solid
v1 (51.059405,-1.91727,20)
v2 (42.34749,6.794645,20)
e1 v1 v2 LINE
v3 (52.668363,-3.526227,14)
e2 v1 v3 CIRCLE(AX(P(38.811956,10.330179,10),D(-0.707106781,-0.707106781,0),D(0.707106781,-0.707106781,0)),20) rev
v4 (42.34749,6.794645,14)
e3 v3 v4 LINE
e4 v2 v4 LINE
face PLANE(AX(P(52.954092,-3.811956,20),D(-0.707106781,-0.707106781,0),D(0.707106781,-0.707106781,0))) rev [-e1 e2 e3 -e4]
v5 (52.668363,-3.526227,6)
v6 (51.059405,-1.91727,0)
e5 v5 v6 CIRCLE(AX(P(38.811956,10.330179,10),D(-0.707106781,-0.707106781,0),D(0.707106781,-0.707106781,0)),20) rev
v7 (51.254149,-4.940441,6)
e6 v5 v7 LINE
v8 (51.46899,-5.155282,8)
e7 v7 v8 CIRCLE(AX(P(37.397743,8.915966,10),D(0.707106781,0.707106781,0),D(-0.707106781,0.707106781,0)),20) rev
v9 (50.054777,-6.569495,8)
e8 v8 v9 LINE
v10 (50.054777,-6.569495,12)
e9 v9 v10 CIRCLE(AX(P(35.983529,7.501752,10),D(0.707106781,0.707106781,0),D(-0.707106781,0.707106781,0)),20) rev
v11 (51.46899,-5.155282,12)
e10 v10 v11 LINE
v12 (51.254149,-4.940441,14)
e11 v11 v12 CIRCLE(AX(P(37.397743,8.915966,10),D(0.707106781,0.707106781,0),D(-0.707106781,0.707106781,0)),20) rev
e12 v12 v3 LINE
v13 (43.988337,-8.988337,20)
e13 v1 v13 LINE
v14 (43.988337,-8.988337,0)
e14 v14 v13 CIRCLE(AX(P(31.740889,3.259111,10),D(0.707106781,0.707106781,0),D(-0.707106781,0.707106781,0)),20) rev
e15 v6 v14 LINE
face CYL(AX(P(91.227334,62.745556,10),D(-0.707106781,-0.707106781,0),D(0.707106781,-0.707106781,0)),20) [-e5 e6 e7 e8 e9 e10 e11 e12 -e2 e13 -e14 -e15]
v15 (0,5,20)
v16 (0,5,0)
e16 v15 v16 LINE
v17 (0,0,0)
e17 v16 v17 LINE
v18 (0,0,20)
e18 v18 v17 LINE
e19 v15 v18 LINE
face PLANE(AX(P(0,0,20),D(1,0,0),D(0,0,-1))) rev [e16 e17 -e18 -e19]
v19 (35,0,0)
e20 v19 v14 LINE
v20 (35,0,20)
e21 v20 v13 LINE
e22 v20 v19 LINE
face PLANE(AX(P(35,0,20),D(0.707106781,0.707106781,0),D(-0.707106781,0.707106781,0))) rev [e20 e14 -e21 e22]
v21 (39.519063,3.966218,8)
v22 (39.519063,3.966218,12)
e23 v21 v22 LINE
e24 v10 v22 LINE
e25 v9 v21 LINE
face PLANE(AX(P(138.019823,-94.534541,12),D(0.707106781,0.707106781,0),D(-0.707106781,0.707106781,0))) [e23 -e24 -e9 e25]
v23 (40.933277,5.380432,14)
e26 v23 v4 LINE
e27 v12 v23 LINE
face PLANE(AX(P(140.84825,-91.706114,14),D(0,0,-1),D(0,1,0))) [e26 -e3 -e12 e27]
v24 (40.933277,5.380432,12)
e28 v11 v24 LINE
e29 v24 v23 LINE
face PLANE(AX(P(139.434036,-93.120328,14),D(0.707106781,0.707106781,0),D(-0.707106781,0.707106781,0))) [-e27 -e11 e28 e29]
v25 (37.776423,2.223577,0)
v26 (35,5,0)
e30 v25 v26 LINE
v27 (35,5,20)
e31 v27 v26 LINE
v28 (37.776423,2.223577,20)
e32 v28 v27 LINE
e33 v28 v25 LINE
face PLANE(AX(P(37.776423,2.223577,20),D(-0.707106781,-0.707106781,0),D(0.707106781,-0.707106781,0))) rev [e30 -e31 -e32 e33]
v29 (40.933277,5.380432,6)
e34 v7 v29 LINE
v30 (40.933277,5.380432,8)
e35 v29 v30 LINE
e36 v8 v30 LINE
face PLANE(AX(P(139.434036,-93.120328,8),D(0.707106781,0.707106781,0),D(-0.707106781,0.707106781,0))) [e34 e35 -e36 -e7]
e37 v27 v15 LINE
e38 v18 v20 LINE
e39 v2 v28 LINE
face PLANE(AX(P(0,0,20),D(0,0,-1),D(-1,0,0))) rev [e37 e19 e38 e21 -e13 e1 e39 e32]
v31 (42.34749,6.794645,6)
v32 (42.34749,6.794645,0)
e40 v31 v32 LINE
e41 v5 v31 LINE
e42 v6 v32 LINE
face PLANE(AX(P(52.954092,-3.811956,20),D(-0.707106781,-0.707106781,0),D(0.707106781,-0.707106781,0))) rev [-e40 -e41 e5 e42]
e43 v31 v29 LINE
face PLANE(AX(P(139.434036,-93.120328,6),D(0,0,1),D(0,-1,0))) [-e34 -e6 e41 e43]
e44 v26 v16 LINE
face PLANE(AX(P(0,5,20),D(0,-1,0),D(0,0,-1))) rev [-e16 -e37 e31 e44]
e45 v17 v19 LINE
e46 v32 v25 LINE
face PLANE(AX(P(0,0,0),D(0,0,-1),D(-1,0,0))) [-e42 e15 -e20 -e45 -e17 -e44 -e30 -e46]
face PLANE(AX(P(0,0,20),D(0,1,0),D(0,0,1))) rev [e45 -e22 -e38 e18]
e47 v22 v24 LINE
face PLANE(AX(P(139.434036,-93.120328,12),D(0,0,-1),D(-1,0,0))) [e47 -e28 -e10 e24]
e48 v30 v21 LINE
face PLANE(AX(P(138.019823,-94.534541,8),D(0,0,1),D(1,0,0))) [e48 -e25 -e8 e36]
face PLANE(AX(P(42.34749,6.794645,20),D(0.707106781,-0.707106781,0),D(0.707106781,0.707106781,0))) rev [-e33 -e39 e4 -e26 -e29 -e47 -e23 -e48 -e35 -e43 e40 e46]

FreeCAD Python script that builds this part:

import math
import FreeCAD as App
import Part
import Sketcher
from FreeCAD import Vector
Q = App.Units.Quantity

doc = App.newDocument("Part")
body = doc.addObject("PartDesign::Body", "Body")

# Sketch on XY plane
sketch1 = doc.addObject("Sketcher::SketchObject", "Sketch")
body.addObject(sketch1)
sketch1.AttachmentSupport = (doc.XY_Plane, [""])
sketch1.MapMode = "FlatFace"
sketch1.addGeometry(Part.LineSegment(Vector(0, 0, 0), Vector(35, 0, 0)), False)
sketch1.addGeometry(Part.LineSegment(Vector(35, 0, 0), Vector(45.9, -10.9, 0)), False)
sketch1.addGeometry(Part.LineSegment(Vector(45.9, -10.9, 0), Vector(53, -3.8, 0)), False)
sketch1.addGeometry(Part.LineSegment(Vector(53, -3.8, 0), Vector(42.3, 6.8, 0)), False)
sketch1.addGeometry(Part.LineSegment(Vector(42.3, 6.8, 0), Vector(37.8, 2.2, 0)), False)
sketch1.addGeometry(Part.LineSegment(Vector(37.8, 2.2, 0), Vector(35, 5, 0)), False)
sketch1.addGeometry(Part.LineSegment(Vector(35, 5, 0), Vector(0, 5, 0)), False)
sketch1.addGeometry(Part.LineSegment(Vector(0, 5, 0), Vector(0, 0, 0)), False)
sketch1.addConstraint(Sketcher.Constraint("Coincident", 0, 2, 1, 1))
sketch1.addConstraint(Sketcher.Constraint("Coincident", 1, 2, 2, 1))
sketch1.addConstraint(Sketcher.Constraint("Coincident", 2, 2, 3, 1))
sketch1.addConstraint(Sketcher.Constraint("Coincident", 3, 2, 4, 1))
sketch1.addConstraint(Sketcher.Constraint("Coincident", 4, 2, 5, 1))
sketch1.addConstraint(Sketcher.Constraint("Coincident", 5, 2, 6, 1))
sketch1.addConstraint(Sketcher.Constraint("Coincident", 6, 2, 7, 1))
sketch1.addConstraint(Sketcher.Constraint("Coincident", 7, 2, 0, 1))
sketch1.addConstraint(Sketcher.Constraint("Horizontal", 0))
sketch1.addConstraint(Sketcher.Constraint("Horizontal", 6))
sketch1.addConstraint(Sketcher.Constraint("Vertical", 7))
sketch1.addConstraint(Sketcher.Constraint("Coincident", 7, 2, -1, 1))
sketch1.addConstraint(Sketcher.Constraint("Perpendicular", 1, 2))
sketch1.addConstraint(Sketcher.Constraint("Perpendicular", 2, 3))
sketch1.addConstraint(Sketcher.Constraint("Perpendicular", 3, 4))
sketch1.addConstraint(Sketcher.Constraint("Perpendicular", 4, 5))
sketch1.addConstraint(Sketcher.Constraint("Vertical", 0, 2, 5, 2))
sketch1.addConstraint(Sketcher.Constraint("DistanceX", 0, 1, 0, 2, Q("35 mm")))
sketch1.addConstraint(Sketcher.Constraint("DistanceY", 7, 2, 7, 1, Q("5 mm")))
sketch1.addConstraint(Sketcher.Constraint("Angle", 1, Q("-45 deg")))
sketch1.addConstraint(Sketcher.Constraint("Distance", 2, Q("10 mm")))
sketch1.addConstraint(Sketcher.Constraint("Distance", 3, Q("15 mm")))
sketch1.addConstraint(Sketcher.Constraint("Distance", 1, Q("15.390921 mm")))
pad1 = doc.addObject("PartDesign::Pad", "Pad")
body.addObject(pad1)
pad1.Profile = sketch1
pad1.Length = 20

# Sketch on an angled plane
sketch2 = doc.addObject("Sketcher::SketchObject", "Sketch001")
body.addObject(sketch2)
sketch2.Placement = App.Placement(Vector(28.383024, -28.383024, 0), App.Rotation(Vector(0, 0, -1), Vector(0.707106781, 0.707106781, 0), Vector(0.707106781, -0.707106781, 0), "ZXY"))
sketch2.addGeometry(Part.LineSegment(Vector(-14, 32.7, 0), Vector(-12, 32.7, 0)), False)
sketch2.addGeometry(Part.LineSegment(Vector(-12, 32.7, 0), Vector(-12, 30.7, 0)), False)
sketch2.addGeometry(Part.LineSegment(Vector(-12, 30.7, 0), Vector(-8, 30.7, 0)), False)
sketch2.addGeometry(Part.LineSegment(Vector(-8, 30.7, 0), Vector(-8, 32.7, 0)), False)
sketch2.addGeometry(Part.LineSegment(Vector(-8, 32.7, 0), Vector(-6, 32.7, 0)), False)
sketch2.addGeometry(Part.LineSegment(Vector(-6, 32.7, 0), Vector(-6, 332.9, 0)), False)
sketch2.addGeometry(Part.LineSegment(Vector(-6, 332.9, 0), Vector(-14, 332.9, 0)), False)
sketch2.addGeometry(Part.LineSegment(Vector(-14, 332.9, 0), Vector(-14, 32.7, 0)), False)
sketch2.addConstraint(Sketcher.Constraint("Coincident", 0, 2, 1, 1))
sketch2.addConstraint(Sketcher.Constraint("Coincident", 1, 2, 2, 1))
sketch2.addConstraint(Sketcher.Constraint("Coincident", 2, 2, 3, 1))
sketch2.addConstraint(Sketcher.Constraint("Coincident", 3, 2, 4, 1))
sketch2.addConstraint(Sketcher.Constraint("Coincident", 4, 2, 5, 1))
sketch2.addConstraint(Sketcher.Constraint("Coincident", 5, 2, 6, 1))
sketch2.addConstraint(Sketcher.Constraint("Coincident", 6, 2, 7, 1))
sketch2.addConstraint(Sketcher.Constraint("Coincident", 7, 2, 0, 1))
sketch2.addConstraint(Sketcher.Constraint("Horizontal", 0))
sketch2.addConstraint(Sketcher.Constraint("Vertical", 1))
sketch2.addConstraint(Sketcher.Constraint("Horizontal", 2))
sketch2.addConstraint(Sketcher.Constraint("Vertical", 3))
sketch2.addConstraint(Sketcher.Constraint("Horizontal", 4))
sketch2.addConstraint(Sketcher.Constraint("Vertical", 5))
sketch2.addConstraint(Sketcher.Constraint("Horizontal", 6))
sketch2.addConstraint(Sketcher.Constraint("Vertical", 7))
sketch2.addConstraint(Sketcher.Constraint("Horizontal", 0, 2, 3, 2))
sketch2.addConstraint(Sketcher.Constraint("Equal", 0, 4))
sketch2.addConstraint(Sketcher.Constraint("Equal", 4, 1))
sketch2.addConstraint(Sketcher.Constraint("DistanceX", 0, 1, 0, 2, Q("2 mm")))
sketch2.addConstraint(Sketcher.Constraint("DistanceX", 2, 1, 2, 2, Q("4 mm")))
sketch2.addConstraint(Sketcher.Constraint("DistanceX", 0, 2, -1, 1, Q("12 mm")))
sketch2.addConstraint(Sketcher.Constraint("DistanceY", 5, 1, 5, 2, Q("300.161065 mm")))
sketch2.addConstraint(Sketcher.Constraint("DistanceY", -1, 1, 0, 2, Q("32.748737 mm")))
pocket1 = doc.addObject("PartDesign::Pocket", "Pocket")
body.addObject(pocket1)
pocket1.Profile = sketch2
pocket1.Type = "ThroughAll"
pocket1.Midplane = True

# Sketch on an angled plane
sketch3 = doc.addObject("Sketcher::SketchObject", "Sketch002")
body.addObject(sketch3)
sketch3.Placement = App.Placement(Vector(24.571068, 24.571068, 0), App.Rotation(Vector(0, 0, -1), Vector(-0.707106781, 0.707106781, 0), Vector(0.707106781, 0.707106781, 0), "ZXY"))
sketch3.addGeometry(Part.LineSegment(Vector(-20, -37, 0), Vector(-110, 14, 0)), False)
sketch3.addGeometry(Part.LineSegment(Vector(-110, 14, 0), Vector(-110, -193, 0)), False)
sketch3.addGeometry(Part.LineSegment(Vector(-110, -193, 0), Vector(90, -193, 0)), False)
sketch3.addGeometry(Part.LineSegment(Vector(90, -193, 0), Vector(90, 14, 0)), False)
sketch3.addGeometry(Part.LineSegment(Vector(90, 14, 0), Vector(0, -37, 0)), False)
sketch3.addGeometry(Part.ArcOfCircle(Part.Circle(Vector(-10, -20, 0), Vector(0, 0, 1), 20), math.radians(-120), math.radians(-60)), False)
sketch3.addConstraint(Sketcher.Constraint("Coincident", 0, 2, 1, 1))
sketch3.addConstraint(Sketcher.Constraint("Coincident", 1, 2, 2, 1))
sketch3.addConstraint(Sketcher.Constraint("Coincident", 2, 2, 3, 1))
sketch3.addConstraint(Sketcher.Constraint("Coincident", 3, 2, 4, 1))
sketch3.addConstraint(Sketcher.Constraint("Tangent", 4, 2, 5, 2))
sketch3.addConstraint(Sketcher.Constraint("Tangent", 5, 1, 0, 1))
sketch3.addConstraint(Sketcher.Constraint("Vertical", 1))
sketch3.addConstraint(Sketcher.Constraint("Horizontal", 2))
sketch3.addConstraint(Sketcher.Constraint("Vertical", 3))
sketch3.addConstraint(Sketcher.Constraint("PointOnObject", 4, 2, -2))
sketch3.addConstraint(Sketcher.Constraint("Horizontal", 0, 2, 3, 2))
sketch3.addConstraint(Sketcher.Constraint("Horizontal", 4, 2, 5, 1))
sketch3.addConstraint(Sketcher.Constraint("Radius", 5, Q("20 mm")))
sketch3.addConstraint(Sketcher.Constraint("Angle", 0, Q("150 deg")))
sketch3.addConstraint(Sketcher.Constraint("DistanceY", 1, 2, -1, 1, Q("192.733999 mm")))
sketch3.addConstraint(Sketcher.Constraint("DistanceX", 2, 1, 2, 2, Q("199.294778 mm")))
sketch3.addConstraint(Sketcher.Constraint("DistanceY", 1, 2, 1, 1, Q("207.031777 mm")))
pocket2 = doc.addObject("PartDesign::Pocket", "Pocket001")
body.addObject(pocket2)
pocket2.Profile = sketch3
pocket2.Type = "ThroughAll"
pocket2.Midplane = True

doc.recompute()
